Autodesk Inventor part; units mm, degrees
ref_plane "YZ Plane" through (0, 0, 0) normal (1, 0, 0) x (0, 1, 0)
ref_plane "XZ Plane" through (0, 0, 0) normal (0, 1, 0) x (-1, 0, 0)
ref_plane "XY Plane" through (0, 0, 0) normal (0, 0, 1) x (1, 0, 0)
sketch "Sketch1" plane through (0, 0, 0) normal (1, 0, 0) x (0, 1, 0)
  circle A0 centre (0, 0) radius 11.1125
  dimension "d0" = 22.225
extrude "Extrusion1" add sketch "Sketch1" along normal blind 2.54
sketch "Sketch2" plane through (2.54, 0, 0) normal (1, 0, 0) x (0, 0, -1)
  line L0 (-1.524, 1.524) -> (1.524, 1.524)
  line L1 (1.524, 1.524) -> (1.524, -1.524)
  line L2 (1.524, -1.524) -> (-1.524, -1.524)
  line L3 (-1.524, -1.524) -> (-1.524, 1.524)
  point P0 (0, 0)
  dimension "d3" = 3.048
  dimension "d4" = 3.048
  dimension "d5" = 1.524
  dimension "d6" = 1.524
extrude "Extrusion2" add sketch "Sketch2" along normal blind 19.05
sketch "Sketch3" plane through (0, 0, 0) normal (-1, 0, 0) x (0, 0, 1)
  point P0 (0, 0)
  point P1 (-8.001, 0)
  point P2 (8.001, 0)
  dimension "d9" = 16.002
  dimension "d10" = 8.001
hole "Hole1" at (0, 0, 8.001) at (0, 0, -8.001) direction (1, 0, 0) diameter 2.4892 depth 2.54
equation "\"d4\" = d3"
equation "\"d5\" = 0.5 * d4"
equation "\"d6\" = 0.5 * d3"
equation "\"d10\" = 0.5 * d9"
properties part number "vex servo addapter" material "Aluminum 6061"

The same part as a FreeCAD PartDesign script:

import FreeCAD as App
import Part
import Sketcher
Q = App.Units.Quantity


def add_polygon(sketch, points):
    """Adds a closed chain of lines whose ends are joined by coincident constraints."""
    first, n = sketch.GeometryCount, len(points)
    for a, b in zip(points, points[1:] + points[:1]):
        sketch.addGeometry(Part.LineSegment(App.Vector(*a, 0), App.Vector(*b, 0)), False)
    for i in range(n):
        sketch.addConstraint(Sketcher.Constraint("Coincident", first + i, 2, first + (i + 1) % n, 1))

doc = App.newDocument("Part")
body = doc.addObject("PartDesign::Body", "Body")

sketch1 = body.newObject("Sketcher::SketchObject", "Sketch")
sketch1.AttachmentSupport = (doc.getObject("YZ_Plane"), [""])
sketch1.MapMode = "FlatFace"
sketch1.addGeometry(Part.Circle(App.Vector(0, 0, 0), App.Vector(0, 0, 1), 11.1125), False)
sketch1.addConstraint([
    Sketcher.Constraint("Coincident", 0, 3, -1, 1),
    Sketcher.Constraint("Diameter", 0, Q("0.875 in")),
])
pad1 = body.newObject("PartDesign::Pad", "Pad")
pad1.Profile = sketch1
pad1.Length = Q("0.1 in")

sketch2 = body.newObject("Sketcher::SketchObject", "Sketch001")
sketch2.AttachmentSupport = (doc.getObject("YZ_Plane"), [""])
sketch2.MapMode = "FlatFace"
sketch2.AttachmentOffset = App.Placement(App.Vector(0, 0, 0.1 * 25.4), App.Rotation())
add_polygon(sketch2, [(1.524, -1.524), (1.524, 1.524), (-1.524, 1.524), (-1.524, -1.524)])
sketch2.addConstraint([
    Sketcher.Constraint("Vertical", 0),
    Sketcher.Constraint("Horizontal", 1),
    Sketcher.Constraint("Vertical", 2),
    Sketcher.Constraint("Horizontal", 3),
    Sketcher.Constraint("Symmetric", 0, 2, 2, 2, -1, 1),
    Sketcher.Constraint("Equal", 3, 0),
    Sketcher.Constraint("DistanceX", 1, 2, 1, 1, Q("0.12 in")),
])
pad2 = body.newObject("PartDesign::Pad", "Pad001")
pad2.Profile = sketch2
pad2.Length = Q("0.75 in")

sketch3 = body.newObject("Sketcher::SketchObject", "Sketch002")
sketch3.AttachmentSupport = (doc.getObject("YZ_Plane"), [""])
sketch3.MapMode = "FlatFace"
sketch3.addGeometry([
    Part.Circle(App.Vector(0, 8.001, 0), App.Vector(0, 0, 1), 1.2446),
    Part.Circle(App.Vector(0, -8.001, 0), App.Vector(0, 0, 1), 1.2446),
], False)
sketch3.addConstraint([
    Sketcher.Constraint("Equal", 0, 1),
    Sketcher.Constraint("Symmetric", 0, 3, 1, 3, -1, 1),
    Sketcher.Constraint("PointOnObject", 0, 3, -2),
    Sketcher.Constraint("Diameter", 0, Q("0.098 in")),
    Sketcher.Constraint("DistanceY", 1, 3, 0, 3, Q("0.63 in")),
])
doc.recompute()
hole = body.newObject("PartDesign::Hole", "Hole")
hole.Profile = sketch3
hole.ThreadType = "None"
hole.Diameter = Q("0.098 in")
hole.DepthType = "Dimension"
hole.Depth = Q("0.1 in")
hole.DrillPoint = "Flat"
hole.Reversed = True

doc.recompute()
